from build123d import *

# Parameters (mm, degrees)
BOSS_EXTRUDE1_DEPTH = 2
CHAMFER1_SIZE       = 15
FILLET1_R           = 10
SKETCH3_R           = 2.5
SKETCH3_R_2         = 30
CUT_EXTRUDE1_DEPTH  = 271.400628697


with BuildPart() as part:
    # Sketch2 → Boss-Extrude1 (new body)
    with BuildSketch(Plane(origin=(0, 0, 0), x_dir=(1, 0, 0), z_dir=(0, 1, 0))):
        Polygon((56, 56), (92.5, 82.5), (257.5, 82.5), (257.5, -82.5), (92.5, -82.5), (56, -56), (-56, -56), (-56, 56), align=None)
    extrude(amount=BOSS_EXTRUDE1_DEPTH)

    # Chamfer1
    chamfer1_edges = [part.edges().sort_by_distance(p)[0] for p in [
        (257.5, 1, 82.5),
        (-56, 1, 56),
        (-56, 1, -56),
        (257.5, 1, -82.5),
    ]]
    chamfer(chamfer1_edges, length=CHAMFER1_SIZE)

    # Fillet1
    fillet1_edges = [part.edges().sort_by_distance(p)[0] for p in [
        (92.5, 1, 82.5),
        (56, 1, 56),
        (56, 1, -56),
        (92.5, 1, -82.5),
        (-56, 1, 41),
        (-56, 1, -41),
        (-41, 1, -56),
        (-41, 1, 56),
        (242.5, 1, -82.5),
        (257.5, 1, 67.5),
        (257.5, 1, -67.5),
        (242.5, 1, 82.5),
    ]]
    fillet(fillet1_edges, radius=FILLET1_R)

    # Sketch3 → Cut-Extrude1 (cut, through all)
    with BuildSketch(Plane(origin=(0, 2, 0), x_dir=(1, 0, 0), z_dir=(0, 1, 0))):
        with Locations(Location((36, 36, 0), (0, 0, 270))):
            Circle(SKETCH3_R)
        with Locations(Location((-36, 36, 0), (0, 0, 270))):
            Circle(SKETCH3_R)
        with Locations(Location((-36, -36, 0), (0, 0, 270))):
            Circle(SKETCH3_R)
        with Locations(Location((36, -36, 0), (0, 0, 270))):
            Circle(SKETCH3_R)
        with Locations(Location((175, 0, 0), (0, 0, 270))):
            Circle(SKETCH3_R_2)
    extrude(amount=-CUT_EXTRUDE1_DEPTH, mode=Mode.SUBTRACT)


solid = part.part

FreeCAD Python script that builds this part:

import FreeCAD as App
import Part
import Sketcher
from FreeCAD import Vector
Q = App.Units.Quantity


def edges_at(feature, points):
    """Names of the edges that pass closest to the given points."""
    edges = feature.Shape.Edges
    near = lambda p: min(range(len(edges)), key=lambda i: edges[i].distToShape(Part.Vertex(*p))[0])
    return sorted({f"Edge{near(p) + 1}" for p in points})


def add_polygon(sketch, points):
    """Adds a closed chain of lines whose ends are joined by coincident constraints."""
    first, n = sketch.GeometryCount, len(points)
    for a, b in zip(points, points[1:] + points[:1]):
        sketch.addGeometry(Part.LineSegment(App.Vector(*a, 0), App.Vector(*b, 0)), False)
    for i in range(n):
        sketch.addConstraint(Sketcher.Constraint("Coincident", first + i, 2, first + (i + 1) % n, 1))

doc = App.newDocument("Part")
body = doc.addObject("PartDesign::Body", "Body")

# Sketch on XZ plane
sketch1 = body.newObject("Sketcher::SketchObject", "Sketch")
sketch1.AttachmentSupport = (doc.getObject("XZ_Plane"), [""])
sketch1.MapMode = "FlatFace"
add_polygon(sketch1, [(92, -82), (56, -56), (-56, -56), (-56, 56), (56, 56), (92, 82), (258, 82), (258, -82)])  # lines 0-7
sketch1.addConstraint([
    Sketcher.Constraint("Horizontal", 1),
    Sketcher.Constraint("Vertical", 2),
    Sketcher.Constraint("Horizontal", 3),
    Sketcher.Constraint("Horizontal", 5),
    Sketcher.Constraint("Vertical", 6),
    Sketcher.Constraint("Horizontal", 7),
    Sketcher.Constraint("Symmetric", 0, 2, 2, 2, -1, 1),
    Sketcher.Constraint("Symmetric", 4, 2, 7, 2, -1),
    Sketcher.Constraint("Vertical", 0, 2, 3, 2),
    Sketcher.Constraint("Equal", 3, 2),
    Sketcher.Constraint("Equal", 7, 6),
    Sketcher.Constraint("DistanceX", 1, 2, 1, 1, Q("112 mm")),
    Sketcher.Constraint("DistanceX", 5, 1, 5, 2, Q("165 mm")),
    Sketcher.Constraint("DistanceX", -1, 1, 4, 2, Q("92.5 mm")),
])
pad1 = body.newObject("PartDesign::Pad", "Pad")
pad1.Profile = sketch1
pad1.Length = 2
pad1.Reversed = True
doc.recompute()

chamfer = body.newObject("PartDesign::Chamfer", "Chamfer")
chamfer.Base = (pad1, edges_at(pad1, [
    (257.5, 1, 82.5),
    (-56, 1, 56),
    (-56, 1, -56),
    (257.5, 1, -82.5),
]))
chamfer.Size = 15
doc.recompute()

fillet = body.newObject("PartDesign::Fillet", "Fillet")
fillet.Base = (chamfer, edges_at(chamfer, [
    (92.5, 1, 82.5),
    (56, 1, 56),
    (56, 1, -56),
    (92.5, 1, -82.5),
    (-56, 1, 41),
    (-56, 1, -41),
    (-41, 1, -56),
    (-41, 1, 56),
    (242.5, 1, -82.5),
    (257.5, 1, 67.5),
    (257.5, 1, -67.5),
    (242.5, 1, 82.5),
]))
fillet.Radius = 10

# Sketch on XZ plane
sketch2 = body.newObject("Sketcher::SketchObject", "Sketch001")
sketch2.AttachmentSupport = (doc.getObject("XZ_Plane"), [""])
sketch2.MapMode = "FlatFace"
sketch2.AttachmentOffset = App.Placement(Vector(0, 0, -2), App.Rotation())
sketch2.addGeometry([
    Part.Circle(Vector(36, -36, 0), Vector(0, 0, 1), 2.5),  # 0
    Part.Circle(Vector(-36, -36, 0), Vector(0, 0, 1), 2.5),  # 1
    Part.Circle(Vector(-36, 36, 0), Vector(0, 0, 1), 2.5),  # 2
    Part.Circle(Vector(36, 36, 0), Vector(0, 0, 1), 2.5),  # 3
    Part.Circle(Vector(175, 0, 0), Vector(0, 0, 1), 30),  # 4
], False)
sketch2.addConstraint([
    Sketcher.Constraint("Equal", 0, 1),
    Sketcher.Constraint("Equal", 1, 2),
    Sketcher.Constraint("Equal", 2, 3),
    Sketcher.Constraint("Symmetric", 0, 3, 2, 3, -1, 1),
    Sketcher.Constraint("Symmetric", 1, 3, 3, 3, -1, 1),
    Sketcher.Constraint("Symmetric", 0, 3, 1, 3, -2),
    Sketcher.Constraint("PointOnObject", 4, 3, -1),
    Sketcher.Constraint("Diameter", 0, Q("5 mm")),
    Sketcher.Constraint("Diameter", 4, Q("60 mm")),
    Sketcher.Constraint("DistanceX", -1, 1, 0, 3, Q("36 mm")),
    Sketcher.Constraint("DistanceY", 0, 3, -1, 1, Q("36 mm")),
    Sketcher.Constraint("DistanceX", -1, 1, 4, 3, Q("175 mm")),
])
pocket1 = body.newObject("PartDesign::Pocket", "Pocket")
pocket1.Profile = sketch2
pocket1.Type = "ThroughAll"
pocket1.Reversed = True

doc.recompute()
